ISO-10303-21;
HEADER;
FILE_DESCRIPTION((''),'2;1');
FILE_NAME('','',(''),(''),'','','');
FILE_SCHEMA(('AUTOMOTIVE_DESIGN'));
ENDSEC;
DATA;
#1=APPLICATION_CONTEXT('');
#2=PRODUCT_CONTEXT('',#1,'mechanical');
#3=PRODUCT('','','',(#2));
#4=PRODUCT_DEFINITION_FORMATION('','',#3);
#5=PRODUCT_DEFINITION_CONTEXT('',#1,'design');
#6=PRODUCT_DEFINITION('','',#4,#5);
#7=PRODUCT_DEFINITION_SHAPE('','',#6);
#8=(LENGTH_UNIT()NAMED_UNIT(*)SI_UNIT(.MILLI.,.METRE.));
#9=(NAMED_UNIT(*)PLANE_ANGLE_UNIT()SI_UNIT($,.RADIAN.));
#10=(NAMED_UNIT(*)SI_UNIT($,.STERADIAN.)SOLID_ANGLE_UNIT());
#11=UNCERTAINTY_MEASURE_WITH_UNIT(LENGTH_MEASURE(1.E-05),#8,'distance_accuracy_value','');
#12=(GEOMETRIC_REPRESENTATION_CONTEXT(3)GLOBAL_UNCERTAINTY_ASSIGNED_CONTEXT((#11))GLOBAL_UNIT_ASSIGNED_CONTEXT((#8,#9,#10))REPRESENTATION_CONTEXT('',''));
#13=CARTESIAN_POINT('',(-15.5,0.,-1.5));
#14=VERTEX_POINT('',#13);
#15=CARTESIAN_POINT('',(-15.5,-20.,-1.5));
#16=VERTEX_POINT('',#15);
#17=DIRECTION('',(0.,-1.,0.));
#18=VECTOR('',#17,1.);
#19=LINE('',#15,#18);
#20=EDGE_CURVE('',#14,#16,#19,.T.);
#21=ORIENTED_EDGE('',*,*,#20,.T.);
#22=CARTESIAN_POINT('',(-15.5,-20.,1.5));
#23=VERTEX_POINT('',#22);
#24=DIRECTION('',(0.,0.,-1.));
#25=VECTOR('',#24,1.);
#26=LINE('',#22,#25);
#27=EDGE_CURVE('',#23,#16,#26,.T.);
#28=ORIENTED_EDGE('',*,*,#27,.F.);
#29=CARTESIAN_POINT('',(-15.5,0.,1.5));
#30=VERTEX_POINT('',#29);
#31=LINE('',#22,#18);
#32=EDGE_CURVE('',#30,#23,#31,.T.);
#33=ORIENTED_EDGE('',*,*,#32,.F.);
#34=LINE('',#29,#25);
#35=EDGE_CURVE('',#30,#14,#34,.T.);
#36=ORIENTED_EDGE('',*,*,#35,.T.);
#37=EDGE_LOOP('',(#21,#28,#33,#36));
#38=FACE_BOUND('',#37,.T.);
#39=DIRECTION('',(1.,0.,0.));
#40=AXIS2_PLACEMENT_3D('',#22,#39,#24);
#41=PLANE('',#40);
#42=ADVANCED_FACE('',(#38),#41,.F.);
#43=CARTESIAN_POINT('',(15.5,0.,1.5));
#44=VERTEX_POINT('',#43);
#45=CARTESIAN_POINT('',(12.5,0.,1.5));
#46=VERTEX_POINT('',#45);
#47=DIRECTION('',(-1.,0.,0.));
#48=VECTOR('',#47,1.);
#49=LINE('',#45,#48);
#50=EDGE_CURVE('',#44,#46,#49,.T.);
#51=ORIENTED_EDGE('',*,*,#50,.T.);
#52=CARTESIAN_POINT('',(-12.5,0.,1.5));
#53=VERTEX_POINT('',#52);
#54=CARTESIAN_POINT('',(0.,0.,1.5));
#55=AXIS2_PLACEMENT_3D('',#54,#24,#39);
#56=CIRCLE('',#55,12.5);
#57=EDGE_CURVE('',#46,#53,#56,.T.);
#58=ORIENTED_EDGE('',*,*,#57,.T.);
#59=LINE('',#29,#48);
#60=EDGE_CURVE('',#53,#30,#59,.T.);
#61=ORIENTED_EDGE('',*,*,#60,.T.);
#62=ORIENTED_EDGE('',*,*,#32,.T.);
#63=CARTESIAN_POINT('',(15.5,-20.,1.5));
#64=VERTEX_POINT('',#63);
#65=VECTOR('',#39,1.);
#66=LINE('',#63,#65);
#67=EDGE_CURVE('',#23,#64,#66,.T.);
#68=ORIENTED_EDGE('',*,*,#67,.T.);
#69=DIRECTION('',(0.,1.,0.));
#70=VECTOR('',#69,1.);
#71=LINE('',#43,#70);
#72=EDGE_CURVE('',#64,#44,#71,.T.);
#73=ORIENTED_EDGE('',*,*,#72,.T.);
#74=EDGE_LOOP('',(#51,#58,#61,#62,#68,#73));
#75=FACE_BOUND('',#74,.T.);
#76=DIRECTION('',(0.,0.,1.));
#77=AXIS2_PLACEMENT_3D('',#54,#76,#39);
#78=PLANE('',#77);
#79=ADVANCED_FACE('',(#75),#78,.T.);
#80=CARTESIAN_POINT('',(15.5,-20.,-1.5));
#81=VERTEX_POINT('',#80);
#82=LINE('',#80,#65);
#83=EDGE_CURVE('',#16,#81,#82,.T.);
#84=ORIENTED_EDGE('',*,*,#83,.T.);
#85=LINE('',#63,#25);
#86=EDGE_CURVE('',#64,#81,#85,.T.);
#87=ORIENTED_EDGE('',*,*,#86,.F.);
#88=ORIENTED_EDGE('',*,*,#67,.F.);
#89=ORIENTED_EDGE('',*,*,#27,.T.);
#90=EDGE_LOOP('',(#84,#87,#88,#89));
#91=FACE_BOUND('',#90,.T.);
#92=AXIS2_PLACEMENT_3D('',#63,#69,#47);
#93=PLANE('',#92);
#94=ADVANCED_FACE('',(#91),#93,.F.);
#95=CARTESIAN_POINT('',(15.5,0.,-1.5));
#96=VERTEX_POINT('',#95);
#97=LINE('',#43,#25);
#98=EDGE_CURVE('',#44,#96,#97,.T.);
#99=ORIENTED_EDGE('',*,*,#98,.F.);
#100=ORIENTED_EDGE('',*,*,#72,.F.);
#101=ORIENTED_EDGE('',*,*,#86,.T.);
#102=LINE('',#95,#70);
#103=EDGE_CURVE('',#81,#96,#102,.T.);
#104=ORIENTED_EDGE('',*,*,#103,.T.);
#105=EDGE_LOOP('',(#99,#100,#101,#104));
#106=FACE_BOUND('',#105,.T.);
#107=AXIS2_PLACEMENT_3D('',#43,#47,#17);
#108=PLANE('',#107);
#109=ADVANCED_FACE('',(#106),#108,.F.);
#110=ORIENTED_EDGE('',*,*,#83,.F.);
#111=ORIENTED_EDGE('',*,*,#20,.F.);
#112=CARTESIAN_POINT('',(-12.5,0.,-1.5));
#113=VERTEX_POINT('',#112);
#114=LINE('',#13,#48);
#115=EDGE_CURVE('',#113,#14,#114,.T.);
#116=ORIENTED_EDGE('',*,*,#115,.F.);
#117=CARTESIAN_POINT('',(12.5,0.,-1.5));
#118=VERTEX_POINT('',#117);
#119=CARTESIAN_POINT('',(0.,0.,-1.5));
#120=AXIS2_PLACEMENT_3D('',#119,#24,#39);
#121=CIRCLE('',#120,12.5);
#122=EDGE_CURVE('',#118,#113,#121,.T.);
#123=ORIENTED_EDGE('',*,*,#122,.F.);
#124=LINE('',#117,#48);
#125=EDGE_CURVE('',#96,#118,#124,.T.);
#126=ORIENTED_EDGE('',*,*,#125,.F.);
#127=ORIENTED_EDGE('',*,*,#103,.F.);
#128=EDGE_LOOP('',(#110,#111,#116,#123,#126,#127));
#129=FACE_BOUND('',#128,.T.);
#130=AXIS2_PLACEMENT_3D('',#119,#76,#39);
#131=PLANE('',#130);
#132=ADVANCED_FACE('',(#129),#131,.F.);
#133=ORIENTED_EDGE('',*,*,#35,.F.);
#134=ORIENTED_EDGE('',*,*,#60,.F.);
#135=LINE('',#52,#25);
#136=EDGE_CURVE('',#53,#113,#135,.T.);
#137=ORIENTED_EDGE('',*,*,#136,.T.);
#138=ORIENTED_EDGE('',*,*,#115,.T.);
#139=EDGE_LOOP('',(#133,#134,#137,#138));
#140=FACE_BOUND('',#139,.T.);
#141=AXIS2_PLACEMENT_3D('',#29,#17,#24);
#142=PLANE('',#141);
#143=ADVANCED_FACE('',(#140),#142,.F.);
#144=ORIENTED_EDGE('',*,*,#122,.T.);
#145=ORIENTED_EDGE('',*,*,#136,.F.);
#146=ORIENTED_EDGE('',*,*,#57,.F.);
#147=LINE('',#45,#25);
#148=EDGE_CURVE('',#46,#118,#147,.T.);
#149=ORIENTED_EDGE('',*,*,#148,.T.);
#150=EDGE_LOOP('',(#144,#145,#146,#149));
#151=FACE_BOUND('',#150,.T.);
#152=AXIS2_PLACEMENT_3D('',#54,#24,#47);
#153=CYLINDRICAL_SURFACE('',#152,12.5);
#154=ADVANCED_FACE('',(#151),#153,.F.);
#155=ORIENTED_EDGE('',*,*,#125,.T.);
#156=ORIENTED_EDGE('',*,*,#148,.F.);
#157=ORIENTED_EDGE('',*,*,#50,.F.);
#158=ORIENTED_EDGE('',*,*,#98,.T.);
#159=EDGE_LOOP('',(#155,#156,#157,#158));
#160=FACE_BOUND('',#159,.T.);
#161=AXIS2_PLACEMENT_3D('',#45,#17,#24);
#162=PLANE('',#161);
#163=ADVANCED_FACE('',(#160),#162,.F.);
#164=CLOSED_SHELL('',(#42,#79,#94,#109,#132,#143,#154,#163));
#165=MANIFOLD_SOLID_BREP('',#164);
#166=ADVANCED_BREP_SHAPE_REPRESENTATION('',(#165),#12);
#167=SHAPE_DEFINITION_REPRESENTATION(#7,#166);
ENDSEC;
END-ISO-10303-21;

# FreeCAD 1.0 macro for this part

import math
import FreeCAD as App
import Part
import Sketcher
from FreeCAD import Vector

doc = App.newDocument("Part")
body = doc.addObject("PartDesign::Body", "Body")

# Sketch on XY plane
sketch1 = body.newObject("Sketcher::SketchObject", "Sketch")
sketch1.AttachmentSupport = (doc.getObject("XY_Plane"), [""])
sketch1.MapMode = "FlatFace"
sketch1.addGeometry([
    Part.LineSegment(Vector(-12.5, 0, 0), Vector(-15.5, 0, 0)),  # 0
    Part.LineSegment(Vector(-15.5, 0, 0), Vector(-15.5, -20, 0)),  # 1
    Part.LineSegment(Vector(-15.5, -20, 0), Vector(15.5, -20, 0)),  # 2
    Part.LineSegment(Vector(15.5, -20, 0), Vector(15.5, 0, 0)),  # 3
    Part.LineSegment(Vector(15.5, 0, 0), Vector(12.5, 0, 0)),  # 4
    Part.ArcOfCircle(Part.Circle(Vector(0, 0, 0), Vector(0, 0, 1), 12.5), math.radians(180), math.radians(360)),  # 5
], False)
sketch1.addConstraint([
    Sketcher.Constraint("Coincident", 0, 2, 1, 1),
    Sketcher.Constraint("Coincident", 1, 2, 2, 1),
    Sketcher.Constraint("Coincident", 2, 2, 3, 1),
    Sketcher.Constraint("Coincident", 3, 2, 4, 1),
    Sketcher.Constraint("Coincident", 4, 2, 5, 2),
    Sketcher.Constraint("Coincident", 5, 1, 0, 1),
    Sketcher.Constraint("Horizontal", 0),
    Sketcher.Constraint("Vertical", 1),
    Sketcher.Constraint("Horizontal", 2),
    Sketcher.Constraint("Vertical", 3),
    Sketcher.Constraint("Horizontal", 4),
    Sketcher.Constraint("Coincident", 5, 3, -1, 1),
    Sketcher.Constraint("Symmetric", 0, 2, 3, 2, -1, 1),
    Sketcher.Constraint("PointOnObject", 0, 2, -1),
    Sketcher.Constraint("Radius", 5, 12.5),
    Sketcher.Constraint("DistanceX", 0, 2, 0, 1, 3.0),
    Sketcher.Constraint("DistanceY", 1, 2, 1, 1, 20.0),
])
pad1 = body.newObject("PartDesign::Pad", "Pad")
pad1.Profile = sketch1
pad1.Length = 3
pad1.Midplane = True

doc.recompute()
